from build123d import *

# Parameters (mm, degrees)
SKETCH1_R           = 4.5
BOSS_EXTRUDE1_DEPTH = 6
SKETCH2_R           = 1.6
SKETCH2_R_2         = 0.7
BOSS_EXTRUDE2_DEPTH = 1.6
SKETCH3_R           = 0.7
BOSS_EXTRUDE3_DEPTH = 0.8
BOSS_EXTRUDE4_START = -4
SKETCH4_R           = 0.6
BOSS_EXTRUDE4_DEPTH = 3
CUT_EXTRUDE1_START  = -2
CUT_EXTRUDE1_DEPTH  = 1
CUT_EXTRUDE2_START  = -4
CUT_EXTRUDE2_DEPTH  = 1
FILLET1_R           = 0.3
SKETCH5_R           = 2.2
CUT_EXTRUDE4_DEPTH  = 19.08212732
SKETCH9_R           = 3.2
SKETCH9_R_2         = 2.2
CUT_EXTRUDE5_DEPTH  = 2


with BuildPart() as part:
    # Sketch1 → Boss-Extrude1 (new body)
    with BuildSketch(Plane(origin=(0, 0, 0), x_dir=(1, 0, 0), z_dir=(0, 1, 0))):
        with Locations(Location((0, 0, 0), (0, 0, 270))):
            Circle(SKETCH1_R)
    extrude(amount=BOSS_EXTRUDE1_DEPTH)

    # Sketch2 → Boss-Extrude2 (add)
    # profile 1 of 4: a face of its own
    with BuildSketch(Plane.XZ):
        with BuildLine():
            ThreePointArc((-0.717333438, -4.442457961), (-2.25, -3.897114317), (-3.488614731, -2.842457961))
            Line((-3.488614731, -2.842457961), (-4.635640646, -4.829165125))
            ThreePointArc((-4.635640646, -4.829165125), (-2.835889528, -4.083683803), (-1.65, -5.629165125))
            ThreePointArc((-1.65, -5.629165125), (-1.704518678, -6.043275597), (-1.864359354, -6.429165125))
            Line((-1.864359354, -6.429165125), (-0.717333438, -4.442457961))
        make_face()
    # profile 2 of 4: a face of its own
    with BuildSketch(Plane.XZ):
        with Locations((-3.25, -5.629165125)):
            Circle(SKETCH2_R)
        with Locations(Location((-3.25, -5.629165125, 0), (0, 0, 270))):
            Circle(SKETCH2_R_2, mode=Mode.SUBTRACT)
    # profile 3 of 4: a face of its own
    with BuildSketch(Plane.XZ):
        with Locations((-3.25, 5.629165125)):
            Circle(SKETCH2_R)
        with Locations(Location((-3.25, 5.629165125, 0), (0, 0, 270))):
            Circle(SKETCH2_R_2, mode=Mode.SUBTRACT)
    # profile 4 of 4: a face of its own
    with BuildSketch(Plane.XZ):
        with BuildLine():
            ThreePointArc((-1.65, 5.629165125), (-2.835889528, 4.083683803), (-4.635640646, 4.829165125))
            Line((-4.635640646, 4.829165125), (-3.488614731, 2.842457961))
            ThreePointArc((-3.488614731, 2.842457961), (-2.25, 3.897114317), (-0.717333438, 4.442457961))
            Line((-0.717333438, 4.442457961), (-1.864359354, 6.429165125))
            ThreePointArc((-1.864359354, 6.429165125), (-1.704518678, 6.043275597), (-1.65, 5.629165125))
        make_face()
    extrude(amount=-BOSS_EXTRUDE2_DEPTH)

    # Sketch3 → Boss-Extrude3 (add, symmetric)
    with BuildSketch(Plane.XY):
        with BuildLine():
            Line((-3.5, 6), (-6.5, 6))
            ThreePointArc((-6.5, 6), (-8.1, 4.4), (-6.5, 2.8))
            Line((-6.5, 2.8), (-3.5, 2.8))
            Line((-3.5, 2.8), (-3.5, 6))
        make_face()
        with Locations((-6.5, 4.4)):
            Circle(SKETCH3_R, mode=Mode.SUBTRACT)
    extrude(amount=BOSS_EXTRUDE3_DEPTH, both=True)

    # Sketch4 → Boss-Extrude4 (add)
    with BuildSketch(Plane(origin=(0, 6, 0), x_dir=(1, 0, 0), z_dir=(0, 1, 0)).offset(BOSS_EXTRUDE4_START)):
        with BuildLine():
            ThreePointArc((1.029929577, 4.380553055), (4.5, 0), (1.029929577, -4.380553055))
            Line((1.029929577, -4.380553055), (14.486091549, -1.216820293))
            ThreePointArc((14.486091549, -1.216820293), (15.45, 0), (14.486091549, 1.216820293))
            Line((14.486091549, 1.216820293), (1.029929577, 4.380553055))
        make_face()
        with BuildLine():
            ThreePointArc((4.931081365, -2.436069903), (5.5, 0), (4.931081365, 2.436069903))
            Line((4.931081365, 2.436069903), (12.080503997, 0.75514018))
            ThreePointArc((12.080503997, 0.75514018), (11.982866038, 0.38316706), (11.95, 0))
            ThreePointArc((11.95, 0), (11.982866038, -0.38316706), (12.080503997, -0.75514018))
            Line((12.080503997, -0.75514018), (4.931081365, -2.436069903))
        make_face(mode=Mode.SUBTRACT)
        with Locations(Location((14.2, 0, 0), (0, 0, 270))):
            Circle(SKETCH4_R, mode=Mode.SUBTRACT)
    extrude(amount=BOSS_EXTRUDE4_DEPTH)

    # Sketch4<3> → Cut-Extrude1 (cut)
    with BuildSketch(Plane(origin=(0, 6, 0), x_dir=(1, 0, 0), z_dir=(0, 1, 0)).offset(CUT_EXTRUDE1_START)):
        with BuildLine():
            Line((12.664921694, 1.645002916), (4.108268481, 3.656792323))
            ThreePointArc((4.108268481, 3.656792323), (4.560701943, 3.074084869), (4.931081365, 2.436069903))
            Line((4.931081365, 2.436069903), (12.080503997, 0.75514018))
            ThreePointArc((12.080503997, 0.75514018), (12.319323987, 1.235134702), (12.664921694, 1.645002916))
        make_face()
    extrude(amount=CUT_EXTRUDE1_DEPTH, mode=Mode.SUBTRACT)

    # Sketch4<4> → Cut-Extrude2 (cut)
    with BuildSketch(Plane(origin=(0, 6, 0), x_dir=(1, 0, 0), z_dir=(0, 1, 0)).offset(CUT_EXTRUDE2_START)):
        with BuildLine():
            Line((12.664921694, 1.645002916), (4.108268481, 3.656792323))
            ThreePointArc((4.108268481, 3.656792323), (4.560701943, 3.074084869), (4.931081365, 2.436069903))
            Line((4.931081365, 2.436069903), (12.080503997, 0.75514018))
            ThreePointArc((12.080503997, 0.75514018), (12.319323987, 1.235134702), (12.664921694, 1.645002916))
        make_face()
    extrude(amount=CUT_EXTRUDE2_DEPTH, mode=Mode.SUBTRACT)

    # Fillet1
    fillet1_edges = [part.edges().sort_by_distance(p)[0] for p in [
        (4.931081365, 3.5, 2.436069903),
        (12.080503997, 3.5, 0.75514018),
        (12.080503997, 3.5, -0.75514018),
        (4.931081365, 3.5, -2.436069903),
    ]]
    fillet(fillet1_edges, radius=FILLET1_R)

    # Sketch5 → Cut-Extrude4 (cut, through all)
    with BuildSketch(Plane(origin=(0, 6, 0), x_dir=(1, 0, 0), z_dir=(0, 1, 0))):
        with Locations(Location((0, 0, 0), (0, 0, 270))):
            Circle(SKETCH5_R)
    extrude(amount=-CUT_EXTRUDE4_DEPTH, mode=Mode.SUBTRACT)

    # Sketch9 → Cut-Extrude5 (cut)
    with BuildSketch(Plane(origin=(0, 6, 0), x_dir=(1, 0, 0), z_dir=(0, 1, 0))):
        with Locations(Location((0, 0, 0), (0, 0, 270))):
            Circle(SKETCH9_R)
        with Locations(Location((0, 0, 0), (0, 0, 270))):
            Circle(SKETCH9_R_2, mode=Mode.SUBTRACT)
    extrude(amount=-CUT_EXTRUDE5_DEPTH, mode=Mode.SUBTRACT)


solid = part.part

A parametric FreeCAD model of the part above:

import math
import FreeCAD as App
import Part
import Sketcher

V = App.Vector
Q = App.Units.Quantity


def edges_at(feature, points):
    """Names of the edges that pass closest to the given points."""
    edges = feature.Shape.Edges
    near = lambda p: min(range(len(edges)), key=lambda i: edges[i].distToShape(Part.Vertex(*p))[0])
    return sorted({f"Edge{near(p) + 1}" for p in points})

doc = App.newDocument("Part")
params = doc.addObject("Spreadsheet::Sheet", "Params")
for row, (alias, value) in enumerate([
    ("sketch1_diameter", "9 mm"),
    ("pad1_length", "6 mm"),
    ("sketch2_diameter", "1.4 mm"),
    ("sketch2_radius", "4.5 mm"),
    ("sketch2_radius2", "1.6 mm"),
    ("pad2_length", "1.6 mm"),
    ("sketch3_diameter", "1.4 mm"),
    ("sketch3_radius", "1.6 mm"),
    ("sketch3_width", "3 mm"),
    ("pad3_length", "1.6 mm"),
    ("sketch4_diameter", "1.2 mm"),
    ("sketch4_radius", "4.5 mm"),
    ("sketch4_radius2", "5.5 mm"),
    ("sketch4_radius3", "1.25 mm"),
    ("sketch4_radius4", "2.25 mm"),
    ("pad4_length", "3 mm"),
    ("sketch5_radius", "5.5 mm"),
    ("sketch5_radius2", "2.25 mm"),
    ("pocket1_length", "1 mm"),
    ("sketch6_radius", "5.5 mm"),
    ("sketch6_radius2", "2.25 mm"),
    ("pocket2_length", "1 mm"),
    ("fillet_radius", "0.3 mm"),
    ("sketch7_diameter", "4.4 mm"),
    ("sketch8_diameter", "6.4 mm"),
    ("sketch8_diameter2", "4.4 mm"),
    ("pocket4_length", "2 mm"),
], start=1):
    params.set(f"A{row}", alias)
    params.set(f"B{row}", "=" + value)
    params.setAlias(f"B{row}", alias)

body = doc.addObject("PartDesign::Body", "Body")

sketch1 = doc.addObject("Sketcher::SketchObject", "Sketch")
body.addObject(sketch1)
sketch1.AttachmentSupport = (doc.XZ_Plane, [""])
sketch1.MapMode = "FlatFace"
sketch1.addGeometry(Part.Circle(V(0, 0, 0), V(0, 0, 1), 4.5), False)
sketch1.addConstraint([
    Sketcher.Constraint("Coincident", 0, 3, -1, 1),
    Sketcher.Constraint("Diameter", 0, 9.0),
])
sketch1.setExpression("Constraints[1]", "Params.sketch1_diameter")
pad1 = doc.addObject("PartDesign::Pad", "Pad")
body.addObject(pad1)
pad1.Profile = sketch1
pad1.setExpression("Length", "Params.pad1_length")
pad1.Reversed = True

sketch2 = doc.addObject("Sketcher::SketchObject", "Sketch001")
body.addObject(sketch2)
sketch2.AttachmentSupport = (doc.XZ_Plane, [""])
sketch2.MapMode = "FlatFace"
sketch2.addGeometry([
    Part.ArcOfCircle(Part.Circle(V(0, 0, 0), V(0, 0, 1), 4.5), math.radians(-141), math.radians(-99)),
    Part.LineSegment(V(-3.5, -2.8, 0), V(-4.6, -4.8, 0)),
    Part.ArcOfCircle(Part.Circle(V(-3.2, -5.6, 0), V(0, 0, 1), 1.6), math.radians(150), math.radians(330)),
    Part.LineSegment(V(-1.9, -6.4, 0), V(-0.7, -4.4, 0)),
    Part.Circle(V(-3.2, -5.6, 0), V(0, 0, 1), 0.7),
    Part.ArcOfCircle(Part.Circle(V(-3.2, 5.6, 0), V(0, 0, 1), 1.6), math.radians(30), math.radians(210)),
    Part.LineSegment(V(-4.6, 4.8, 0), V(-3.5, 2.8, 0)),
    Part.ArcOfCircle(Part.Circle(V(0, 0, 0), V(0, 0, 1), 4.5), math.radians(99), math.radians(141)),
    Part.LineSegment(V(-0.7, 4.4, 0), V(-1.9, 6.4, 0)),
    Part.Circle(V(-3.2, 5.6, 0), V(0, 0, 1), 0.7),
], False)
sketch2.addConstraint([
    Sketcher.Constraint("Coincident", 0, 1, 1, 1),
    Sketcher.Constraint("Tangent", 1, 2, 2, 1),
    Sketcher.Constraint("Tangent", 2, 2, 3, 1),
    Sketcher.Constraint("Coincident", 3, 2, 0, 2),
    Sketcher.Constraint("Tangent", 5, 2, 6, 1),
    Sketcher.Constraint("Coincident", 6, 2, 7, 2),
    Sketcher.Constraint("Coincident", 7, 1, 8, 1),
    Sketcher.Constraint("Tangent", 8, 2, 5, 1),
    Sketcher.Constraint("Coincident", 0, 3, -1, 1),
    Sketcher.Constraint("Coincident", 7, 3, -1, 1),
    Sketcher.Constraint("Coincident", 4, 3, 2, 3),
    Sketcher.Constraint("Coincident", 9, 3, 5, 3),
    Sketcher.Constraint("Equal", 2, 5),
    Sketcher.Constraint("Equal", 0, 7),
    Sketcher.Constraint("Equal", 4, 9),
    Sketcher.Constraint("Symmetric", 2, 3, 5, 3, -1),
    Sketcher.Constraint("Parallel", 1, 3),
    Sketcher.Constraint("Parallel", 6, 8),
    Sketcher.Constraint("Vertical", 1, 2, 5, 2),
    Sketcher.Constraint("Equal", 1, 3),
    Sketcher.Constraint("Diameter", 4, 1.4),
    Sketcher.Constraint("Radius", 0, 4.5),
    Sketcher.Constraint("Radius", 2, 1.6),
    Sketcher.Constraint("Angle", 1, Q("-120 deg")),
    Sketcher.Constraint("DistanceX", 2, 3, -1, 1, 3.25),
])
sketch2.setExpression("Constraints[20]", "Params.sketch2_diameter")
sketch2.setExpression("Constraints[21]", "Params.sketch2_radius")
sketch2.setExpression("Constraints[22]", "Params.sketch2_radius2")
pad2 = doc.addObject("PartDesign::Pad", "Pad001")
body.addObject(pad2)
pad2.Profile = sketch2
pad2.setExpression("Length", "Params.pad2_length")
pad2.Reversed = True

sketch3 = doc.addObject("Sketcher::SketchObject", "Sketch002")
body.addObject(sketch3)
sketch3.AttachmentSupport = (doc.XY_Plane, [""])
sketch3.MapMode = "FlatFace"
sketch3.addGeometry([
    Part.LineSegment(V(-3.5, 6, 0), V(-6.5, 6, 0)),
    Part.ArcOfCircle(Part.Circle(V(-6.5, 4.4, 0), V(0, 0, 1), 1.6), math.radians(90), math.radians(270)),
    Part.LineSegment(V(-6.5, 2.8, 0), V(-3.5, 2.8, 0)),
    Part.LineSegment(V(-3.5, 2.8, 0), V(-3.5, 6, 0)),
    Part.Circle(V(-6.5, 4.4, 0), V(0, 0, 1), 0.7),
], False)
sketch3.addConstraint([
    Sketcher.Constraint("Tangent", 0, 2, 1, 1),
    Sketcher.Constraint("Tangent", 1, 2, 2, 1),
    Sketcher.Constraint("Coincident", 2, 2, 3, 1),
    Sketcher.Constraint("Coincident", 3, 2, 0, 1),
    Sketcher.Constraint("Horizontal", 0),
    Sketcher.Constraint("Horizontal", 2),
    Sketcher.Constraint("Vertical", 3),
    Sketcher.Constraint("Coincident", 4, 3, 1, 3),
    Sketcher.Constraint("Diameter", 4, 1.4),
    Sketcher.Constraint("Radius", 1, 1.6),
    Sketcher.Constraint("DistanceX", 0, 2, 0, 1, 3.0),
    Sketcher.Constraint("DistanceY", -1, 1, 0, 2, 6.0),
    Sketcher.Constraint("DistanceX", 1, 3, -1, 1, 6.5),
])
sketch3.setExpression("Constraints[8]", "Params.sketch3_diameter")
sketch3.setExpression("Constraints[9]", "Params.sketch3_radius")
sketch3.setExpression("Constraints[10]", "Params.sketch3_width")
pad3 = doc.addObject("PartDesign::Pad", "Pad002")
body.addObject(pad3)
pad3.Profile = sketch3
pad3.setExpression("Length", "Params.pad3_length")
pad3.Midplane = True

sketch4 = doc.addObject("Sketcher::SketchObject", "Sketch003")
body.addObject(sketch4)
sketch4.AttachmentSupport = (doc.XZ_Plane, [""])
sketch4.MapMode = "FlatFace"
sketch4.AttachmentOffset = App.Placement(V(0, 0, -2), App.Rotation())
sketch4.addGeometry([
    Part.ArcOfCircle(Part.Circle(V(0, 0, 0), V(0, 0, 1), 4.5), math.radians(-77), math.radians(77)),
    Part.LineSegment(V(1, 4.4, 0), V(14.5, 1.2, 0)),
    Part.ArcOfCircle(Part.Circle(V(14.2, 0, 0), V(0, 0, 1), 1.2), math.radians(-77), math.radians(77)),
    Part.LineSegment(V(14.5, -1.2, 0), V(1, -4.4, 0)),
    Part.LineSegment(V(12.1, 0.8, 0), V(4.9, 2.4, 0)),
    Part.ArcOfCircle(Part.Circle(V(0, 0, 0), V(0, 0, 1), 5.5), math.radians(-26), math.radians(26)),
    Part.LineSegment(V(4.9, -2.4, 0), V(12.1, -0.8, 0)),
    Part.ArcOfCircle(Part.Circle(V(14.2, 0, 0), V(0, 0, 1), 2.2), math.radians(180), math.radians(199.61)),
    Part.ArcOfCircle(Part.Circle(V(14.2, 0, 0), V(0, 0, 1), 2.2), math.radians(160.39), math.radians(180)),
    Part.Circle(V(14.2, 0, 0), V(0, 0, 1), 0.6),
], False)
sketch4.addConstraint([
    Sketcher.Constraint("Tangent", 0, 2, 1, 1),
    Sketcher.Constraint("Tangent", 1, 2, 2, 2),
    Sketcher.Constraint("Tangent", 2, 1, 3, 1),
    Sketcher.Constraint("Tangent", 3, 2, 0, 1),
    Sketcher.Constraint("Coincident", 4, 2, 5, 2),
    Sketcher.Constraint("Coincident", 5, 1, 6, 1),
    Sketcher.Constraint("Coincident", 6, 2, 7, 2),
    Sketcher.Constraint("Tangent", 7, 1, 8, 2),
    Sketcher.Constraint("Coincident", 8, 1, 4, 1),
    Sketcher.Constraint("Coincident", 0, 3, -1, 1),
    Sketcher.Constraint("Coincident", 5, 3, -1, 1),
    Sketcher.Constraint("Coincident", 7, 3, 2, 3),
    Sketcher.Constraint("Coincident", 9, 3, 2, 3),
    Sketcher.Constraint("Equal", 7, 8),
    Sketcher.Constraint("Symmetric", 6, 2, 8, 1, -1),
    Sketcher.Constraint("PointOnObject", 7, 1, -1),
    Sketcher.Constraint("Parallel", 1, 4),
    Sketcher.Constraint("Parallel", 3, 6),
    Sketcher.Constraint("Diameter", 9, 1.2),
    Sketcher.Constraint("Radius", 0, 4.5),
    Sketcher.Constraint("Radius", 5, 5.5),
    Sketcher.Constraint("Radius", 2, 1.25),
    Sketcher.Constraint("Radius", 7, 2.25),
    Sketcher.Constraint("DistanceX", -1, 1, 2, 3, 14.2),
    Sketcher.Constraint("Distance", 4, 7.34437),
])
sketch4.setExpression("Constraints[18]", "Params.sketch4_diameter")
sketch4.setExpression("Constraints[19]", "Params.sketch4_radius")
sketch4.setExpression("Constraints[20]", "Params.sketch4_radius2")
sketch4.setExpression("Constraints[21]", "Params.sketch4_radius3")
sketch4.setExpression("Constraints[22]", "Params.sketch4_radius4")
pad4 = doc.addObject("PartDesign::Pad", "Pad003")
body.addObject(pad4)
pad4.Profile = sketch4
pad4.setExpression("Length", "Params.pad4_length")
pad4.Reversed = True

sketch5 = doc.addObject("Sketcher::SketchObject", "Sketch004")
body.addObject(sketch5)
sketch5.AttachmentSupport = (doc.XZ_Plane, [""])
sketch5.MapMode = "FlatFace"
sketch5.AttachmentOffset = App.Placement(V(0, 0, -4), App.Rotation())
sketch5.addGeometry([
    Part.LineSegment(V(12.7, -1.6, 0), V(4.1, -3.7, 0)),
    Part.ArcOfCircle(Part.Circle(V(0, 0, 0), V(0, 0, 1), 5.5), math.radians(-41.67), math.radians(-26.29)),
    Part.LineSegment(V(4.9, -2.4, 0), V(12.1, -0.8, 0)),
    Part.ArcOfCircle(Part.Circle(V(14.2, 0, 0), V(0, 0, 1), 2.3), math.radians(-160), math.radians(-133)),
], False)
sketch5.addConstraint([
    Sketcher.Constraint("Coincident", 0, 2, 1, 1),
    Sketcher.Constraint("Coincident", 1, 2, 2, 1),
    Sketcher.Constraint("Coincident", 2, 2, 3, 1),
    Sketcher.Constraint("Coincident", 3, 2, 0, 1),
    Sketcher.Constraint("Coincident", 1, 3, -1, 1),
    Sketcher.Constraint("PointOnObject", 3, 3, -1),
    Sketcher.Constraint("Parallel", 0, 2),
    Sketcher.Constraint("Radius", 1, 5.5),
    Sketcher.Constraint("Radius", 3, 2.25),
    Sketcher.Constraint("DistanceX", -1, 1, 3, 3, 14.2),
    Sketcher.Constraint("Distance", 2, 7.34437),
    Sketcher.Constraint("DistanceX", -1, 1, 0, 2, 4.108268),
    Sketcher.Constraint("DistanceX", -1, 1, 1, 2, 4.931081),
])
sketch5.setExpression("Constraints[7]", "Params.sketch5_radius")
sketch5.setExpression("Constraints[8]", "Params.sketch5_radius2")
pocket1 = doc.addObject("PartDesign::Pocket", "Pocket")
body.addObject(pocket1)
pocket1.Profile = sketch5
pocket1.setExpression("Length", "Params.pocket1_length")

sketch6 = doc.addObject("Sketcher::SketchObject", "Sketch005")
body.addObject(sketch6)
sketch6.AttachmentSupport = (doc.XZ_Plane, [""])
sketch6.MapMode = "FlatFace"
sketch6.AttachmentOffset = App.Placement(V(0, 0, -2), App.Rotation())
sketch6.addGeometry([
    Part.LineSegment(V(12.7, -1.6, 0), V(4.1, -3.7, 0)),
    Part.ArcOfCircle(Part.Circle(V(0, 0, 0), V(0, 0, 1), 5.5), math.radians(-41.67), math.radians(-26.29)),
    Part.LineSegment(V(4.9, -2.4, 0), V(12.1, -0.8, 0)),
    Part.ArcOfCircle(Part.Circle(V(14.2, 0, 0), V(0, 0, 1), 2.3), math.radians(-160), math.radians(-133)),
], False)
sketch6.addConstraint([
    Sketcher.Constraint("Coincident", 0, 2, 1, 1),
    Sketcher.Constraint("Coincident", 1, 2, 2, 1),
    Sketcher.Constraint("Coincident", 2, 2, 3, 1),
    Sketcher.Constraint("Coincident", 3, 2, 0, 1),
    Sketcher.Constraint("Coincident", 1, 3, -1, 1),
    Sketcher.Constraint("PointOnObject", 3, 3, -1),
    Sketcher.Constraint("Parallel", 0, 2),
    Sketcher.Constraint("Radius", 1, 5.5),
    Sketcher.Constraint("Radius", 3, 2.25),
    Sketcher.Constraint("DistanceX", -1, 1, 3, 3, 14.2),
    Sketcher.Constraint("Distance", 2, 7.34437),
    Sketcher.Constraint("DistanceX", -1, 1, 0, 2, 4.108268),
    Sketcher.Constraint("DistanceX", -1, 1, 1, 2, 4.931081),
])
sketch6.setExpression("Constraints[7]", "Params.sketch6_radius")
sketch6.setExpression("Constraints[8]", "Params.sketch6_radius2")
pocket2 = doc.addObject("PartDesign::Pocket", "Pocket001")
body.addObject(pocket2)
pocket2.Profile = sketch6
pocket2.setExpression("Length", "Params.pocket2_length")
doc.recompute()

fillet = doc.addObject("PartDesign::Fillet", "Fillet")
body.addObject(fillet)
fillet.Base = (pocket2, edges_at(pocket2, [
    (4.931, 3.5, 2.436),
    (12.081, 3.5, 0.755),
    (12.081, 3.5, -0.755),
    (4.931, 3.5, -2.436),
]))
fillet.setExpression("Radius", "Params.fillet_radius")

sketch7 = doc.addObject("Sketcher::SketchObject", "Sketch006")
body.addObject(sketch7)
sketch7.AttachmentSupport = (doc.XZ_Plane, [""])
sketch7.MapMode = "FlatFace"
sketch7.AttachmentOffset = App.Placement(V(0, 0, -6), App.Rotation())
sketch7.addGeometry(Part.Circle(V(0, 0, 0), V(0, 0, 1), 2.2), False)
sketch7.addConstraint([
    Sketcher.Constraint("Coincident", 0, 3, -1, 1),
    Sketcher.Constraint("Diameter", 0, 4.4),
])
sketch7.setExpression("Constraints[1]", "Params.sketch7_diameter")
pocket3 = doc.addObject("PartDesign::Pocket", "Pocket002")
body.addObject(pocket3)
pocket3.Profile = sketch7
pocket3.Type = "ThroughAll"
pocket3.Reversed = True

sketch8 = doc.addObject("Sketcher::SketchObject", "Sketch007")
body.addObject(sketch8)
sketch8.AttachmentSupport = (doc.XZ_Plane, [""])
sketch8.MapMode = "FlatFace"
sketch8.AttachmentOffset = App.Placement(V(0, 0, -6), App.Rotation())
sketch8.addGeometry([
    Part.Circle(V(0, 0, 0), V(0, 0, 1), 3.2),
    Part.Circle(V(0, 0, 0), V(0, 0, 1), 2.2),
], False)
sketch8.addConstraint([
    Sketcher.Constraint("Coincident", 0, 3, -1, 1),
    Sketcher.Constraint("Coincident", 1, 3, -1, 1),
    Sketcher.Constraint("Diameter", 0, 6.4),
    Sketcher.Constraint("Diameter", 1, 4.4),
])
sketch8.setExpression("Constraints[2]", "Params.sketch8_diameter")
sketch8.setExpression("Constraints[3]", "Params.sketch8_diameter2")
pocket4 = doc.addObject("PartDesign::Pocket", "Pocket003")
body.addObject(pocket4)
pocket4.Profile = sketch8
pocket4.setExpression("Length", "Params.pocket4_length")
pocket4.Reversed = True

doc.recompute()
